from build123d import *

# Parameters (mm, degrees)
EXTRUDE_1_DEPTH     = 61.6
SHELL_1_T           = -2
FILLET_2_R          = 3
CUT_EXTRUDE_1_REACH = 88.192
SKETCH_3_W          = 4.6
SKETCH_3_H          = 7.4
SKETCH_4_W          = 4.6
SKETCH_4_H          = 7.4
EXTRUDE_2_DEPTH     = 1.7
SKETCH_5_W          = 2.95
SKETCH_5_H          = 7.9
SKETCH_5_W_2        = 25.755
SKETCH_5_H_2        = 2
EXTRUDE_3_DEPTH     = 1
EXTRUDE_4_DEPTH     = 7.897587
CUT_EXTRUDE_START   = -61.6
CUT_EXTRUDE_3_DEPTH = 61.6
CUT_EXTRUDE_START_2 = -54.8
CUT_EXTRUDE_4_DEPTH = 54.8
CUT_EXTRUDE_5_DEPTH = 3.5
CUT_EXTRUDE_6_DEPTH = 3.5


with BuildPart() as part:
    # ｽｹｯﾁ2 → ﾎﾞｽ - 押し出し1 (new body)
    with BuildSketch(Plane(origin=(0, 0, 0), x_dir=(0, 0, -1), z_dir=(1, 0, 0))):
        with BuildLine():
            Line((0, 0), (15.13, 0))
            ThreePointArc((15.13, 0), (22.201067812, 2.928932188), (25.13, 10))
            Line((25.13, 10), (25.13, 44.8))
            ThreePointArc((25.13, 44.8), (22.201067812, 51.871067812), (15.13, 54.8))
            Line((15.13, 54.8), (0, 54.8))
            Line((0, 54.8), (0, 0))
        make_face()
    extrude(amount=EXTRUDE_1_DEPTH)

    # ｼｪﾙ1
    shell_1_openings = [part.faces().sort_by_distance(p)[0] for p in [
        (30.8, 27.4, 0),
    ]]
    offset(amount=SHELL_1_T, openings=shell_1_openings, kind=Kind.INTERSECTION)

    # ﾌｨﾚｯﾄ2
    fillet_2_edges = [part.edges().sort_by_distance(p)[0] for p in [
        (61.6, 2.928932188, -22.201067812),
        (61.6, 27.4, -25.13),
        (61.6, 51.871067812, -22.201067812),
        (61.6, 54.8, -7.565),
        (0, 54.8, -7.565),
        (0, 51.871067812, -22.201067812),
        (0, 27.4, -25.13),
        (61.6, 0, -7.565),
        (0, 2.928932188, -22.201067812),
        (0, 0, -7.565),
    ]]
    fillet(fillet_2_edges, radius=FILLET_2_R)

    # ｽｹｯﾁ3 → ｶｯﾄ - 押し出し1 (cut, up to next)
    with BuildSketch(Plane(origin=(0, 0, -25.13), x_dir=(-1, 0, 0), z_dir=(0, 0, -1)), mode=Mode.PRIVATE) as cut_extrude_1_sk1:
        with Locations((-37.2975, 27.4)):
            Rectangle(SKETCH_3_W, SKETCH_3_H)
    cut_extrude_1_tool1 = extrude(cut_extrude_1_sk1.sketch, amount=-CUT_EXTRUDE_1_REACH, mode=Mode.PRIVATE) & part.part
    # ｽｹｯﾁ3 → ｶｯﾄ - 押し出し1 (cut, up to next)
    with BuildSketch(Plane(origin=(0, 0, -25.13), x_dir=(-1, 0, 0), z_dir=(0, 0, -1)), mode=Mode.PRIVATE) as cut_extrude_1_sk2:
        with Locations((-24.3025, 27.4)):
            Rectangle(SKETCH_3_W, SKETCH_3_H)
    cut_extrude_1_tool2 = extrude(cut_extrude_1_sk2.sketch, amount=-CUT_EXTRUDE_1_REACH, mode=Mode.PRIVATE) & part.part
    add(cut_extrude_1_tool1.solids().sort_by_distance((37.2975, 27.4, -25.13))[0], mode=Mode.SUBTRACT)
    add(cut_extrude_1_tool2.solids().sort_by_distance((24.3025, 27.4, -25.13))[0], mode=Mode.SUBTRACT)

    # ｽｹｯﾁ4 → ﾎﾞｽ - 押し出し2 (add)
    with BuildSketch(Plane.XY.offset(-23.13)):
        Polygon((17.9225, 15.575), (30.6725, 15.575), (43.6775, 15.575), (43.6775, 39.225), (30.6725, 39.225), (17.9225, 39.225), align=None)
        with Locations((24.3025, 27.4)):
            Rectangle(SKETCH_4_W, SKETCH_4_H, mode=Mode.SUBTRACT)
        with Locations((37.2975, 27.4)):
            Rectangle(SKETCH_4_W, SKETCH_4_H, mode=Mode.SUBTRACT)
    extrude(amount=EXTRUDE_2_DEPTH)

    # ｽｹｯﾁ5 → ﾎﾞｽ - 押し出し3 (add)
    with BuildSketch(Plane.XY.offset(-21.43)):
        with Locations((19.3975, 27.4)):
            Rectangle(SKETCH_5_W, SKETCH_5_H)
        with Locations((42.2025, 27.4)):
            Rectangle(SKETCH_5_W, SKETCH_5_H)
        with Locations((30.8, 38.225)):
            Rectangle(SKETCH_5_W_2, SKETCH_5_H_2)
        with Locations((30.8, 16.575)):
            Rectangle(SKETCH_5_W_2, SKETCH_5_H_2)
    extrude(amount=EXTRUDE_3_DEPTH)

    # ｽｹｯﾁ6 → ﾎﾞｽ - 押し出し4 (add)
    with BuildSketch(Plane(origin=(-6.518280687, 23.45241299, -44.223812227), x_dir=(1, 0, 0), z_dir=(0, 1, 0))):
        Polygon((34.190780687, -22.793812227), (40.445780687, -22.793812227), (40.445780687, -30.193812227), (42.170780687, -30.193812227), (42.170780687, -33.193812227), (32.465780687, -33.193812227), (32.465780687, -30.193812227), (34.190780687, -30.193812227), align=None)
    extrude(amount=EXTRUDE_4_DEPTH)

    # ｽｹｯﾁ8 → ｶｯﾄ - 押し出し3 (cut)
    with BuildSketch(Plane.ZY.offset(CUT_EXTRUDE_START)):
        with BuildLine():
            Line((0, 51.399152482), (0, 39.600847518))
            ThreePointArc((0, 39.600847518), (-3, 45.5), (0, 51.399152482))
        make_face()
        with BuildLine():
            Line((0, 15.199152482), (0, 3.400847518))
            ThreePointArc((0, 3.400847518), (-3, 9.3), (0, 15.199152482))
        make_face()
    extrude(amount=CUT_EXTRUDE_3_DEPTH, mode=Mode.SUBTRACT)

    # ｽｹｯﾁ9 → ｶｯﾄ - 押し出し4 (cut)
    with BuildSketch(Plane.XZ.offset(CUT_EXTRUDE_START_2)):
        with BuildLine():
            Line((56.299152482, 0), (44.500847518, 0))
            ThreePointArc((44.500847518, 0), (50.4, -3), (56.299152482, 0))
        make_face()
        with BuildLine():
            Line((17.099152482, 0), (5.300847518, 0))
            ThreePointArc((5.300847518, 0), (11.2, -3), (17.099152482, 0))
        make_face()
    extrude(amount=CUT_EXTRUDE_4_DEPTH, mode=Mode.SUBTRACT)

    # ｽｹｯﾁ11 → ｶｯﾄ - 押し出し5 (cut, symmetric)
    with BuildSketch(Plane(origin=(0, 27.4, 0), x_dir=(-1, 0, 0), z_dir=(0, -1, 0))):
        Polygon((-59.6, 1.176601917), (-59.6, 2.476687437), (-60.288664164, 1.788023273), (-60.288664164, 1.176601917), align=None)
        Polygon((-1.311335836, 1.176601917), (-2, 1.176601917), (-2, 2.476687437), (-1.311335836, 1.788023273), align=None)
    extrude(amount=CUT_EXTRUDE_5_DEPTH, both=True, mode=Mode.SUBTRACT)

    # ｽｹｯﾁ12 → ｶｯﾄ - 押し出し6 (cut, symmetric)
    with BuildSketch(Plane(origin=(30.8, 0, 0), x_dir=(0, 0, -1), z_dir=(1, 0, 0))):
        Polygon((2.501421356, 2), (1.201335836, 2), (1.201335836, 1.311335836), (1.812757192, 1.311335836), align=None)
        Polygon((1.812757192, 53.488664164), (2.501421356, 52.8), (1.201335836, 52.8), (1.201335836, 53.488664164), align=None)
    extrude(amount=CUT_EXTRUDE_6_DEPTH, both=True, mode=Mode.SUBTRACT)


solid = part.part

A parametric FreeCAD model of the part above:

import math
import FreeCAD as App
import Part
import Sketcher
Q = App.Units.Quantity


def edges_at(feature, points):
    """Names of the edges that pass closest to the given points."""
    edges = feature.Shape.Edges
    near = lambda p: min(range(len(edges)), key=lambda i: edges[i].distToShape(Part.Vertex(*p))[0])
    return sorted({f"Edge{near(p) + 1}" for p in points})


def faces_at(feature, points):
    """Names of the faces that lie closest to the given points."""
    faces = feature.Shape.Faces
    near = lambda p: min(range(len(faces)), key=lambda i: faces[i].distToShape(Part.Vertex(*p))[0])
    return sorted({f"Face{near(p) + 1}" for p in points})

doc = App.newDocument("Part")
body = doc.addObject("PartDesign::Body", "Body")

# Sketch on YZ plane
sketch1 = doc.addObject("Sketcher::SketchObject", "Sketch")
body.addObject(sketch1)
sketch1.AttachmentSupport = (doc.YZ_Plane, [""])
sketch1.MapMode = "FlatFace"
sketch1.addGeometry([
    Part.LineSegment(App.Vector(0, 0, 0), App.Vector(0, -15, 0)),  # 0
    Part.ArcOfCircle(Part.Circle(App.Vector(10, -15, 0), App.Vector(0, 0, 1), 10), math.radians(180), math.radians(270)),  # 1
    Part.LineSegment(App.Vector(10, -25, 0), App.Vector(45, -25, 0)),  # 2
    Part.ArcOfCircle(Part.Circle(App.Vector(45, -15, 0), App.Vector(0, 0, 1), 10), math.radians(-90), math.radians(0)),  # 3
    Part.LineSegment(App.Vector(55, -15, 0), App.Vector(55, 0, 0)),  # 4
    Part.LineSegment(App.Vector(55, 0, 0), App.Vector(0, 0, 0)),  # 5
], False)
sketch1.addConstraint([
    Sketcher.Constraint("Tangent", 0, 2, 1, 1),
    Sketcher.Constraint("Tangent", 1, 2, 2, 1),
    Sketcher.Constraint("Tangent", 2, 2, 3, 1),
    Sketcher.Constraint("Tangent", 3, 2, 4, 1),
    Sketcher.Constraint("Coincident", 4, 2, 5, 1),
    Sketcher.Constraint("Coincident", 5, 2, 0, 1),
    Sketcher.Constraint("Vertical", 0),
    Sketcher.Constraint("Horizontal", 2),
    Sketcher.Constraint("Vertical", 4),
    Sketcher.Constraint("Horizontal", 5),
    Sketcher.Constraint("Coincident", 5, 2, -1, 1),
    Sketcher.Constraint("Equal", 1, 3),
    Sketcher.Constraint("Radius", 1, Q("10 mm")),
    Sketcher.Constraint("DistanceX", 2, 1, 2, 2, Q("34.8 mm")),
    Sketcher.Constraint("DistanceY", 0, 2, 0, 1, Q("15.13 mm")),
])
pad1 = doc.addObject("PartDesign::Pad", "Pad")
body.addObject(pad1)
pad1.Profile = sketch1
pad1.Length = 61.6
doc.recompute()

thickness = doc.addObject("PartDesign::Thickness", "Thickness")
body.addObject(thickness)
thickness.Base = (pad1, faces_at(pad1, [(30.8, 27.4, 0)]))
thickness.Value = 2
thickness.Reversed = True
thickness.Join = "Intersection"
doc.recompute()

fillet = doc.addObject("PartDesign::Fillet", "Fillet")
body.addObject(fillet)
fillet.Base = (thickness, edges_at(thickness, [
    (61.6, 2.929, -22.201),
    (61.6, 27.4, -25.13),
    (61.6, 51.871, -22.201),
    (61.6, 54.8, -7.565),
    (0, 54.8, -7.565),
    (0, 51.871, -22.201),
    (0, 27.4, -25.13),
    (61.6, 0, -7.565),
    (0, 2.929, -22.201),
    (0, 0, -7.565),
]))
fillet.Radius = 3

# Sketch on XY plane
sketch2 = doc.addObject("Sketcher::SketchObject", "Sketch001")
body.addObject(sketch2)
sketch2.AttachmentSupport = (doc.XY_Plane, [""])
sketch2.MapMode = "FlatFace"
sketch2.AttachmentOffset = App.Placement(App.Vector(0, 0, -25.13), App.Rotation())
sketch2.addGeometry([
    Part.LineSegment(App.Vector(39.6, 31.1, 0), App.Vector(39.6, 23.7, 0)),
    Part.LineSegment(App.Vector(39.6, 23.7, 0), App.Vector(35, 23.7, 0)),
    Part.LineSegment(App.Vector(35, 23.7, 0), App.Vector(35, 31.1, 0)),
    Part.LineSegment(App.Vector(35, 31.1, 0), App.Vector(39.6, 31.1, 0)),
], False)
sketch2.addConstraint([
    Sketcher.Constraint("Coincident", 0, 2, 1, 1),
    Sketcher.Constraint("Coincident", 1, 2, 2, 1),
    Sketcher.Constraint("Coincident", 2, 2, 3, 1),
    Sketcher.Constraint("Coincident", 3, 2, 0, 1),
    Sketcher.Constraint("Vertical", 0),
    Sketcher.Constraint("Horizontal", 1),
    Sketcher.Constraint("Vertical", 2),
    Sketcher.Constraint("Horizontal", 3),
    Sketcher.Constraint("DistanceX", 1, 2, 1, 1, Q("4.6 mm")),
    Sketcher.Constraint("DistanceY", 0, 2, 0, 1, Q("7.4 mm")),
    Sketcher.Constraint("DistanceY", -1, 1, 0, 2, Q("23.7 mm")),
    Sketcher.Constraint("DistanceX", -1, 1, 0, 2, Q("39.5975 mm")),
])
pocket1 = doc.addObject("PartDesign::Pocket", "Pocket")
body.addObject(pocket1)
pocket1.Profile = sketch2
pocket1.Type = "UpToFirst"
pocket1.Reversed = True

# Sketch on XY plane
sketch3 = doc.addObject("Sketcher::SketchObject", "Sketch002")
body.addObject(sketch3)
sketch3.AttachmentSupport = (doc.XY_Plane, [""])
sketch3.MapMode = "FlatFace"
sketch3.AttachmentOffset = App.Placement(App.Vector(0, 0, -25.13), App.Rotation())
sketch3.addGeometry([
    Part.LineSegment(App.Vector(26.6, 31.1, 0), App.Vector(26.6, 23.7, 0)),
    Part.LineSegment(App.Vector(26.6, 23.7, 0), App.Vector(22, 23.7, 0)),
    Part.LineSegment(App.Vector(22, 23.7, 0), App.Vector(22, 31.1, 0)),
    Part.LineSegment(App.Vector(22, 31.1, 0), App.Vector(26.6, 31.1, 0)),
], False)
sketch3.addConstraint([
    Sketcher.Constraint("Coincident", 0, 2, 1, 1),
    Sketcher.Constraint("Coincident", 1, 2, 2, 1),
    Sketcher.Constraint("Coincident", 2, 2, 3, 1),
    Sketcher.Constraint("Coincident", 3, 2, 0, 1),
    Sketcher.Constraint("Vertical", 0),
    Sketcher.Constraint("Horizontal", 1),
    Sketcher.Constraint("Vertical", 2),
    Sketcher.Constraint("Horizontal", 3),
    Sketcher.Constraint("DistanceX", 1, 2, 1, 1, Q("4.6 mm")),
    Sketcher.Constraint("DistanceY", 0, 2, 0, 1, Q("7.4 mm")),
    Sketcher.Constraint("DistanceY", -1, 1, 0, 2, Q("23.7 mm")),
    Sketcher.Constraint("DistanceX", -1, 1, 0, 2, Q("26.6025 mm")),
])
pocket2 = doc.addObject("PartDesign::Pocket", "Pocket001")
body.addObject(pocket2)
pocket2.Profile = sketch3
pocket2.Type = "UpToFirst"
pocket2.Reversed = True

# Sketch on XY plane
sketch4 = doc.addObject("Sketcher::SketchObject", "Sketch003")
body.addObject(sketch4)
sketch4.AttachmentSupport = (doc.XY_Plane, [""])
sketch4.MapMode = "FlatFace"
sketch4.AttachmentOffset = App.Placement(App.Vector(0, 0, -23.13), App.Rotation())
sketch4.addGeometry([
    Part.LineSegment(App.Vector(17.9, 15.6, 0), App.Vector(43.7, 15.6, 0)),  # 0
    Part.LineSegment(App.Vector(43.7, 15.6, 0), App.Vector(43.7, 39.2, 0)),  # 1
    Part.LineSegment(App.Vector(43.7, 39.2, 0), App.Vector(17.9, 39.2, 0)),  # 2
    Part.LineSegment(App.Vector(17.9, 39.2, 0), App.Vector(17.9, 15.6, 0)),  # 3
    Part.LineSegment(App.Vector(26.6, 23.7, 0), App.Vector(22, 23.7, 0)),  # 4
    Part.LineSegment(App.Vector(22, 23.7, 0), App.Vector(22, 31.1, 0)),  # 5
    Part.LineSegment(App.Vector(22, 31.1, 0), App.Vector(26.6, 31.1, 0)),  # 6
    Part.LineSegment(App.Vector(26.6, 31.1, 0), App.Vector(26.6, 23.7, 0)),  # 7
    Part.LineSegment(App.Vector(39.6, 23.7, 0), App.Vector(35, 23.7, 0)),  # 8
    Part.LineSegment(App.Vector(35, 23.7, 0), App.Vector(35, 31.1, 0)),  # 9
    Part.LineSegment(App.Vector(35, 31.1, 0), App.Vector(39.6, 31.1, 0)),  # 10
    Part.LineSegment(App.Vector(39.6, 31.1, 0), App.Vector(39.6, 23.7, 0)),  # 11
], False)
sketch4.addConstraint([
    Sketcher.Constraint("Coincident", 0, 2, 1, 1),
    Sketcher.Constraint("Coincident", 1, 2, 2, 1),
    Sketcher.Constraint("Coincident", 2, 2, 3, 1),
    Sketcher.Constraint("Coincident", 3, 2, 0, 1),
    Sketcher.Constraint("Coincident", 4, 2, 5, 1),
    Sketcher.Constraint("Coincident", 5, 2, 6, 1),
    Sketcher.Constraint("Coincident", 6, 2, 7, 1),
    Sketcher.Constraint("Coincident", 7, 2, 4, 1),
    Sketcher.Constraint("Coincident", 8, 2, 9, 1),
    Sketcher.Constraint("Coincident", 9, 2, 10, 1),
    Sketcher.Constraint("Coincident", 10, 2, 11, 1),
    Sketcher.Constraint("Coincident", 11, 2, 8, 1),
    Sketcher.Constraint("Horizontal", 0),
    Sketcher.Constraint("Vertical", 1),
    Sketcher.Constraint("Horizontal", 2),
    Sketcher.Constraint("Vertical", 3),
    Sketcher.Constraint("Horizontal", 4),
    Sketcher.Constraint("Vertical", 5),
    Sketcher.Constraint("Horizontal", 6),
    Sketcher.Constraint("Vertical", 7),
    Sketcher.Constraint("Horizontal", 8),
    Sketcher.Constraint("Vertical", 9),
    Sketcher.Constraint("Horizontal", 10),
    Sketcher.Constraint("Vertical", 11),
    Sketcher.Constraint("Horizontal", 7, 2, 8, 2),
    Sketcher.Constraint("Horizontal", 6, 2, 9, 2),
    Sketcher.Constraint("Equal", 6, 8),
    Sketcher.Constraint("DistanceX", 4, 2, 4, 1, Q("4.6 mm")),
    Sketcher.Constraint("DistanceY", 5, 1, 5, 2, Q("7.4 mm")),
    Sketcher.Constraint("DistanceY", 1, 1, 1, 2, Q("23.65 mm")),
    Sketcher.Constraint("DistanceY", -1, 1, 4, 2, Q("23.7 mm")),
    Sketcher.Constraint("DistanceX", 0, 1, 0, 2, Q("25.755 mm")),
    Sketcher.Constraint("DistanceX", 3, 2, 4, 2, Q("4.08 mm")),
    Sketcher.Constraint("DistanceX", 8, 2, 0, 2, Q("8.68 mm")),
    Sketcher.Constraint("DistanceY", -1, 1, 0, 2, Q("15.575 mm")),
    Sketcher.Constraint("DistanceX", -1, 1, 0, 2, Q("43.6775 mm")),
])
pad2 = doc.addObject("PartDesign::Pad", "Pad001")
body.addObject(pad2)
pad2.Profile = sketch4
pad2.Length = 1.7

# Sketch on XY plane
sketch5 = doc.addObject("Sketcher::SketchObject", "Sketch004")
body.addObject(sketch5)
sketch5.AttachmentSupport = (doc.XY_Plane, [""])
sketch5.MapMode = "FlatFace"
sketch5.AttachmentOffset = App.Placement(App.Vector(0, 0, -21.43), App.Rotation())
sketch5.addGeometry([
    Part.LineSegment(App.Vector(17.9, 31.4, 0), App.Vector(17.9, 23.4, 0)),  # 0
    Part.LineSegment(App.Vector(17.9, 23.4, 0), App.Vector(20.9, 23.4, 0)),  # 1
    Part.LineSegment(App.Vector(20.9, 23.4, 0), App.Vector(20.9, 31.4, 0)),  # 2
    Part.LineSegment(App.Vector(20.9, 31.4, 0), App.Vector(17.9, 31.4, 0)),  # 3
    Part.LineSegment(App.Vector(40.7, 31.4, 0), App.Vector(40.7, 23.4, 0)),  # 4
    Part.LineSegment(App.Vector(40.7, 23.4, 0), App.Vector(43.7, 23.4, 0)),  # 5
    Part.LineSegment(App.Vector(43.7, 23.4, 0), App.Vector(43.7, 31.4, 0)),  # 6
    Part.LineSegment(App.Vector(43.7, 31.4, 0), App.Vector(40.7, 31.4, 0)),  # 7
    Part.LineSegment(App.Vector(17.9, 39.2, 0), App.Vector(17.9, 37.2, 0)),  # 8
    Part.LineSegment(App.Vector(17.9, 37.2, 0), App.Vector(43.7, 37.2, 0)),  # 9
    Part.LineSegment(App.Vector(43.7, 37.2, 0), App.Vector(43.7, 39.2, 0)),  # 10
    Part.LineSegment(App.Vector(43.7, 39.2, 0), App.Vector(17.9, 39.2, 0)),  # 11
    Part.LineSegment(App.Vector(17.9, 17.6, 0), App.Vector(17.9, 15.6, 0)),  # 12
    Part.LineSegment(App.Vector(17.9, 15.6, 0), App.Vector(43.7, 15.6, 0)),  # 13
    Part.LineSegment(App.Vector(43.7, 15.6, 0), App.Vector(43.7, 17.6, 0)),  # 14
    Part.LineSegment(App.Vector(43.7, 17.6, 0), App.Vector(17.9, 17.6, 0)),  # 15
], False)
sketch5.addConstraint([
    Sketcher.Constraint("Coincident", 0, 2, 1, 1),
    Sketcher.Constraint("Coincident", 1, 2, 2, 1),
    Sketcher.Constraint("Coincident", 2, 2, 3, 1),
    Sketcher.Constraint("Coincident", 3, 2, 0, 1),
    Sketcher.Constraint("Coincident", 4, 2, 5, 1),
    Sketcher.Constraint("Coincident", 5, 2, 6, 1),
    Sketcher.Constraint("Coincident", 6, 2, 7, 1),
    Sketcher.Constraint("Coincident", 7, 2, 4, 1),
    Sketcher.Constraint("Coincident", 8, 2, 9, 1),
    Sketcher.Constraint("Coincident", 9, 2, 10, 1),
    Sketcher.Constraint("Coincident", 10, 2, 11, 1),
    Sketcher.Constraint("Coincident", 11, 2, 8, 1),
    Sketcher.Constraint("Coincident", 12, 2, 13, 1),
    Sketcher.Constraint("Coincident", 13, 2, 14, 1),
    Sketcher.Constraint("Coincident", 14, 2, 15, 1),
    Sketcher.Constraint("Coincident", 15, 2, 12, 1),
    Sketcher.Constraint("Vertical", 0),
    Sketcher.Constraint("Horizontal", 1),
    Sketcher.Constraint("Vertical", 2),
    Sketcher.Constraint("Horizontal", 3),
    Sketcher.Constraint("Vertical", 4),
    Sketcher.Constraint("Horizontal", 5),
    Sketcher.Constraint("Vertical", 6),
    Sketcher.Constraint("Horizontal", 7),
    Sketcher.Constraint("Vertical", 8),
    Sketcher.Constraint("Horizontal", 9),
    Sketcher.Constraint("Vertical", 10),
    Sketcher.Constraint("Horizontal", 11),
    Sketcher.Constraint("Vertical", 12),
    Sketcher.Constraint("Horizontal", 13),
    Sketcher.Constraint("Vertical", 14),
    Sketcher.Constraint("Horizontal", 15),
    Sketcher.Constraint("Horizontal", 1, 2, 4, 2),
    Sketcher.Constraint("Horizontal", 3, 2, 6, 2),
    Sketcher.Constraint("Vertical", 3, 2, 8, 2),
    Sketcher.Constraint("Vertical", 6, 2, 9, 2),
    Sketcher.Constraint("Vertical", 11, 2, 12, 2),
    Sketcher.Constraint("Vertical", 10, 2, 13, 2),
    Sketcher.Constraint("Equal", 3, 5),
    Sketcher.Constraint("Equal", 10, 12),
    Sketcher.Constraint("DistanceY", 8, 2, 8, 1, Q("2 mm")),
    Sketcher.Constraint("DistanceY", 0, 2, 0, 1, Q("7.9 mm")),
    Sketcher.Constraint("DistanceX", 1, 1, 1, 2, Q("2.95 mm")),
    Sketcher.Constraint("DistanceX", 9, 1, 9, 2, Q("25.755 mm")),
    Sketcher.Constraint("DistanceY", -1, 1, 0, 2, Q("23.45 mm")),
    Sketcher.Constraint("DistanceY", 12, 2, 8, 2, Q("21.65 mm")),
    Sketcher.Constraint("DistanceY", -1, 1, 8, 2, Q("37.225 mm")),
    Sketcher.Constraint("DistanceX", -1, 1, 0, 2, Q("17.9225 mm")),
])
pad3 = doc.addObject("PartDesign::Pad", "Pad002")
body.addObject(pad3)
pad3.Profile = sketch5
pad3.Length = 1

# Sketch on XZ plane
sketch6 = doc.addObject("Sketcher::SketchObject", "Sketch005")
body.addObject(sketch6)
sketch6.AttachmentSupport = (doc.XZ_Plane, [""])
sketch6.MapMode = "FlatFace"
sketch6.AttachmentOffset = App.Placement(App.Vector(0, 0, -23.452413), App.Rotation())
sketch6.addGeometry([
    Part.LineSegment(App.Vector(33.9, -21.4, 0), App.Vector(27.7, -21.4, 0)),  # 0
    Part.LineSegment(App.Vector(27.7, -21.4, 0), App.Vector(27.7, -14, 0)),  # 1
    Part.LineSegment(App.Vector(27.7, -14, 0), App.Vector(25.9, -14, 0)),  # 2
    Part.LineSegment(App.Vector(25.9, -14, 0), App.Vector(25.9, -11, 0)),  # 3
    Part.LineSegment(App.Vector(25.9, -11, 0), App.Vector(35.7, -11, 0)),  # 4
    Part.LineSegment(App.Vector(35.7, -11, 0), App.Vector(35.7, -14, 0)),  # 5
    Part.LineSegment(App.Vector(35.7, -14, 0), App.Vector(33.9, -14, 0)),  # 6
    Part.LineSegment(App.Vector(33.9, -14, 0), App.Vector(33.9, -21.4, 0)),  # 7
], False)
sketch6.addConstraint([
    Sketcher.Constraint("Coincident", 0, 2, 1, 1),
    Sketcher.Constraint("Coincident", 1, 2, 2, 1),
    Sketcher.Constraint("Coincident", 2, 2, 3, 1),
    Sketcher.Constraint("Coincident", 3, 2, 4, 1),
    Sketcher.Constraint("Coincident", 4, 2, 5, 1),
    Sketcher.Constraint("Coincident", 5, 2, 6, 1),
    Sketcher.Constraint("Coincident", 6, 2, 7, 1),
    Sketcher.Constraint("Coincident", 7, 2, 0, 1),
    Sketcher.Constraint("Horizontal", 0),
    Sketcher.Constraint("Vertical", 1),
    Sketcher.Constraint("Horizontal", 2),
    Sketcher.Constraint("Vertical", 3),
    Sketcher.Constraint("Horizontal", 4),
    Sketcher.Constraint("Vertical", 5),
    Sketcher.Constraint("Horizontal", 6),
    Sketcher.Constraint("Vertical", 7),
    Sketcher.Constraint("Horizontal", 2, 2, 5, 2),
    Sketcher.Constraint("Equal", 2, 6),
    Sketcher.Constraint("DistanceY", 3, 1, 3, 2, Q("3 mm")),
    Sketcher.Constraint("DistanceY", 1, 1, 1, 2, Q("7.4 mm")),
    Sketcher.Constraint("DistanceX", 0, 2, 0, 1, Q("6.255 mm")),
    Sketcher.Constraint("DistanceX", 2, 2, 2, 1, Q("1.725 mm")),
    Sketcher.Constraint("DistanceY", 0, 2, -1, 1, Q("21.43 mm")),
    Sketcher.Constraint("DistanceX", -1, 1, 0, 2, Q("27.6725 mm")),
])
pad4 = doc.addObject("PartDesign::Pad", "Pad003")
body.addObject(pad4)
pad4.Profile = sketch6
pad4.Length = 7.897587
pad4.Reversed = True

# Sketch on YZ plane
sketch7 = doc.addObject("Sketcher::SketchObject", "Sketch006")
body.addObject(sketch7)
sketch7.AttachmentSupport = (doc.YZ_Plane, [""])
sketch7.MapMode = "FlatFace"
sketch7.AttachmentOffset = App.Placement(App.Vector(0, 0, 61.6), App.Rotation())
sketch7.addGeometry([
    Part.LineSegment(App.Vector(40, 0, 0), App.Vector(51, 0, 0)),
    Part.ArcOfCircle(Part.Circle(App.Vector(46, 4, 0), App.Vector(0, 0, 1), 7), math.radians(-144), math.radians(-36)),
    Part.LineSegment(App.Vector(3, 0, 0), App.Vector(15, 0, 0)),
    Part.ArcOfCircle(Part.Circle(App.Vector(9, 4, 0), App.Vector(0, 0, 1), 7), math.radians(-144), math.radians(-36)),
], False)
sketch7.addConstraint([
    Sketcher.Constraint("Coincident", 0, 1, 1, 1),
    Sketcher.Constraint("Coincident", 1, 2, 0, 2),
    Sketcher.Constraint("Coincident", 2, 1, 3, 1),
    Sketcher.Constraint("Coincident", 3, 2, 2, 2),
    Sketcher.Constraint("Horizontal", 0),
    Sketcher.Constraint("Horizontal", 2),
    Sketcher.Constraint("Equal", 1, 3),
    Sketcher.Constraint("PointOnObject", 0, 1, -1),
    Sketcher.Constraint("PointOnObject", 2, 1, -1),
    Sketcher.Constraint("Horizontal", 1, 3, 3, 3),
    Sketcher.Constraint("Radius", 1, Q("7.3 mm")),
    Sketcher.Constraint("DistanceX", -1, 1, 1, 3, Q("45.5 mm")),
    Sketcher.Constraint("DistanceY", -1, 1, 1, 3, Q("4.3 mm")),
    Sketcher.Constraint("DistanceX", -1, 1, 3, 3, Q("9.3 mm")),
])
pocket3 = doc.addObject("PartDesign::Pocket", "Pocket002")
body.addObject(pocket3)
pocket3.Profile = sketch7
pocket3.Length = 61.6

# Sketch on XZ plane
sketch8 = doc.addObject("Sketcher::SketchObject", "Sketch007")
body.addObject(sketch8)
sketch8.AttachmentSupport = (doc.XZ_Plane, [""])
sketch8.MapMode = "FlatFace"
sketch8.AttachmentOffset = App.Placement(App.Vector(0, 0, -54.8), App.Rotation())
sketch8.addGeometry([
    Part.LineSegment(App.Vector(56, 0, 0), App.Vector(45, 0, 0)),
    Part.ArcOfCircle(Part.Circle(App.Vector(50, 4, 0), App.Vector(0, 0, 1), 7), math.radians(-144), math.radians(-36)),
    Part.LineSegment(App.Vector(17, 0, 0), App.Vector(5, 0, 0)),
    Part.ArcOfCircle(Part.Circle(App.Vector(11, 4, 0), App.Vector(0, 0, 1), 7), math.radians(-144), math.radians(-36)),
], False)
sketch8.addConstraint([
    Sketcher.Constraint("Coincident", 0, 1, 1, 2),
    Sketcher.Constraint("Coincident", 1, 1, 0, 2),
    Sketcher.Constraint("Coincident", 2, 1, 3, 2),
    Sketcher.Constraint("Coincident", 3, 1, 2, 2),
    Sketcher.Constraint("Horizontal", 0),
    Sketcher.Constraint("Horizontal", 2),
    Sketcher.Constraint("Equal", 1, 3),
    Sketcher.Constraint("PointOnObject", 0, 1, -1),
    Sketcher.Constraint("PointOnObject", 2, 1, -1),
    Sketcher.Constraint("Horizontal", 1, 3, 3, 3),
    Sketcher.Constraint("Radius", 1, Q("7.3 mm")),
    Sketcher.Constraint("DistanceX", -1, 1, 1, 3, Q("50.4 mm")),
    Sketcher.Constraint("DistanceY", -1, 1, 1, 3, Q("4.3 mm")),
    Sketcher.Constraint("DistanceX", -1, 1, 3, 3, Q("11.2 mm")),
])
pocket4 = doc.addObject("PartDesign::Pocket", "Pocket003")
body.addObject(pocket4)
pocket4.Profile = sketch8
pocket4.Length = 54.8
pocket4.Reversed = True

# Sketch on XZ plane
sketch9 = doc.addObject("Sketcher::SketchObject", "Sketch008")
body.addObject(sketch9)
sketch9.AttachmentSupport = (doc.XZ_Plane, [""])
sketch9.MapMode = "FlatFace"
sketch9.AttachmentOffset = App.Placement(App.Vector(0, 0, -27.4), App.Rotation())
sketch9.addGeometry([
    Part.LineSegment(App.Vector(59.6, -1.2, 0), App.Vector(59.6, -2.5, 0)),  # 0
    Part.LineSegment(App.Vector(59.6, -2.5, 0), App.Vector(60.3, -1.8, 0)),  # 1
    Part.LineSegment(App.Vector(60.3, -1.8, 0), App.Vector(60.3, -1.2, 0)),  # 2
    Part.LineSegment(App.Vector(60.3, -1.2, 0), App.Vector(59.6, -1.2, 0)),  # 3
    Part.LineSegment(App.Vector(2, -1.2, 0), App.Vector(1.3, -1.2, 0)),  # 4
    Part.LineSegment(App.Vector(1.3, -1.2, 0), App.Vector(1.3, -1.8, 0)),  # 5
    Part.LineSegment(App.Vector(1.3, -1.8, 0), App.Vector(2, -2.5, 0)),  # 6
    Part.LineSegment(App.Vector(2, -2.5, 0), App.Vector(2, -1.2, 0)),  # 7
], False)
sketch9.addConstraint([
    Sketcher.Constraint("Coincident", 0, 2, 1, 1),
    Sketcher.Constraint("Coincident", 1, 2, 2, 1),
    Sketcher.Constraint("Coincident", 2, 2, 3, 1),
    Sketcher.Constraint("Coincident", 3, 2, 0, 1),
    Sketcher.Constraint("Coincident", 4, 2, 5, 1),
    Sketcher.Constraint("Coincident", 5, 2, 6, 1),
    Sketcher.Constraint("Coincident", 6, 2, 7, 1),
    Sketcher.Constraint("Coincident", 7, 2, 4, 1),
    Sketcher.Constraint("Vertical", 0),
    Sketcher.Constraint("Vertical", 2),
    Sketcher.Constraint("Horizontal", 3),
    Sketcher.Constraint("Horizontal", 4),
    Sketcher.Constraint("Vertical", 5),
    Sketcher.Constraint("Vertical", 7),
    Sketcher.Constraint("Perpendicular", 1, 6),
    Sketcher.Constraint("Horizontal", 3, 2, 4, 2),
    Sketcher.Constraint("Horizontal", 1, 2, 5, 2),
    Sketcher.Constraint("Horizontal", 0, 2, 6, 2),
    Sketcher.Constraint("Equal", 3, 4),
    Sketcher.Constraint("DistanceX", -1, 1, 6, 2, Q("2 mm")),
    Sketcher.Constraint("DistanceX", -1, 1, 0, 2, Q("59.6 mm")),
    Sketcher.Constraint("DistanceY", 2, 1, 2, 2, Q("0.611421 mm")),
    Sketcher.Constraint("DistanceY", 2, 2, -1, 1, Q("1.176602 mm")),
    Sketcher.Constraint("Distance", 1, Q("0.973918 mm")),
])
pocket5 = doc.addObject("PartDesign::Pocket", "Pocket004")
body.addObject(pocket5)
pocket5.Profile = sketch9
pocket5.Length = 7
pocket5.Midplane = True

# Sketch on YZ plane
sketch10 = doc.addObject("Sketcher::SketchObject", "Sketch009")
body.addObject(sketch10)
sketch10.AttachmentSupport = (doc.YZ_Plane, [""])
sketch10.MapMode = "FlatFace"
sketch10.AttachmentOffset = App.Placement(App.Vector(0, 0, 30.8), App.Rotation())
sketch10.addGeometry([
    Part.LineSegment(App.Vector(2, -2.5, 0), App.Vector(2, -1.2, 0)),  # 0
    Part.LineSegment(App.Vector(2, -1.2, 0), App.Vector(1.3, -1.2, 0)),  # 1
    Part.LineSegment(App.Vector(1.3, -1.2, 0), App.Vector(1.3, -1.8, 0)),  # 2
    Part.LineSegment(App.Vector(1.3, -1.8, 0), App.Vector(2, -2.5, 0)),  # 3
    Part.LineSegment(App.Vector(52.8, -2.5, 0), App.Vector(53.5, -1.8, 0)),  # 4
    Part.LineSegment(App.Vector(53.5, -1.8, 0), App.Vector(53.5, -1.2, 0)),  # 5
    Part.LineSegment(App.Vector(53.5, -1.2, 0), App.Vector(52.8, -1.2, 0)),  # 6
    Part.LineSegment(App.Vector(52.8, -1.2, 0), App.Vector(52.8, -2.5, 0)),  # 7
], False)
sketch10.addConstraint([
    Sketcher.Constraint("Coincident", 0, 2, 1, 1),
    Sketcher.Constraint("Coincident", 1, 2, 2, 1),
    Sketcher.Constraint("Coincident", 2, 2, 3, 1),
    Sketcher.Constraint("Coincident", 3, 2, 0, 1),
    Sketcher.Constraint("Coincident", 4, 2, 5, 1),
    Sketcher.Constraint("Coincident", 5, 2, 6, 1),
    Sketcher.Constraint("Coincident", 6, 2, 7, 1),
    Sketcher.Constraint("Coincident", 7, 2, 4, 1),
    Sketcher.Constraint("Vertical", 0),
    Sketcher.Constraint("Horizontal", 1),
    Sketcher.Constraint("Vertical", 2),
    Sketcher.Constraint("Vertical", 5),
    Sketcher.Constraint("Horizontal", 6),
    Sketcher.Constraint("Vertical", 7),
    Sketcher.Constraint("Perpendicular", 3, 4),
    Sketcher.Constraint("Horizontal", 2, 2, 4, 2),
    Sketcher.Constraint("Horizontal", 1, 2, 5, 2),
    Sketcher.Constraint("Horizontal", 3, 2, 7, 2),
    Sketcher.Constraint("Equal", 1, 6),
    Sketcher.Constraint("DistanceX", -1, 1, 0, 2, Q("2 mm")),
    Sketcher.Constraint("DistanceX", -1, 1, 6, 2, Q("52.8 mm")),
    Sketcher.Constraint("DistanceY", 2, 2, 2, 1, Q("0.611421 mm")),
    Sketcher.Constraint("Distance", 3, Q("0.973918 mm")),
    Sketcher.Constraint("DistanceY", 3, 2, -1, 1, Q("2.501421 mm")),
])
pocket6 = doc.addObject("PartDesign::Pocket", "Pocket005")
body.addObject(pocket6)
pocket6.Profile = sketch10
pocket6.Length = 7
pocket6.Midplane = True

doc.recompute()
